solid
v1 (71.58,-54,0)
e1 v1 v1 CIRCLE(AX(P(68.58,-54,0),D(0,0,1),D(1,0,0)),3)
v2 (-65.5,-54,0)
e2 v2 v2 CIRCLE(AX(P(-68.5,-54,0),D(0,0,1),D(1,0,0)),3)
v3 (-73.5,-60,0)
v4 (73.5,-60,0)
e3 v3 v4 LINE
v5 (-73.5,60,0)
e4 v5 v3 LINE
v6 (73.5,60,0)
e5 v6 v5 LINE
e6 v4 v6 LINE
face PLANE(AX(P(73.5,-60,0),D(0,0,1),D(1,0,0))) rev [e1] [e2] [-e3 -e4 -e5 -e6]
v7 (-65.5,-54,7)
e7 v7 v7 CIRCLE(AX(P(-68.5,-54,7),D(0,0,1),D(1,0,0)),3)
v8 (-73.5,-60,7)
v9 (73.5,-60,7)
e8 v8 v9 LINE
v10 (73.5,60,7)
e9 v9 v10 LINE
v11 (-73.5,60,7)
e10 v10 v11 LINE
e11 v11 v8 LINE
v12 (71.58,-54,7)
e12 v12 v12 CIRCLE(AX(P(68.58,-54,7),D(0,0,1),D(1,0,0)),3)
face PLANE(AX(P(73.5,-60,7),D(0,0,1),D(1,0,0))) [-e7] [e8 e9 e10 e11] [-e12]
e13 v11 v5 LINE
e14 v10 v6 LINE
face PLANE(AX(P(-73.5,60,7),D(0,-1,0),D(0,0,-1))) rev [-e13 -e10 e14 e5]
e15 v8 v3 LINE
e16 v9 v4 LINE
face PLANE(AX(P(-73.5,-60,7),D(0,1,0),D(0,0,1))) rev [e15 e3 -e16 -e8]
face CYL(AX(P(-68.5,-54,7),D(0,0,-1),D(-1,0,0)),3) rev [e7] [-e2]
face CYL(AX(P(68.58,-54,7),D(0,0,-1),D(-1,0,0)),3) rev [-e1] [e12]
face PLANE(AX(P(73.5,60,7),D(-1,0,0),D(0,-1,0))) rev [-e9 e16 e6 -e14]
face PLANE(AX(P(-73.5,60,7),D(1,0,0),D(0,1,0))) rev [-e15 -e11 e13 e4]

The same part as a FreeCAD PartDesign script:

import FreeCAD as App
import Part
import Sketcher

V = App.Vector
Q = App.Units.Quantity


def add_polygon(sketch, points):
    """Adds a closed chain of lines whose ends are joined by coincident constraints."""
    first, n = sketch.GeometryCount, len(points)
    for a, b in zip(points, points[1:] + points[:1]):
        sketch.addGeometry(Part.LineSegment(App.Vector(*a, 0), App.Vector(*b, 0)), False)
    for i in range(n):
        sketch.addConstraint(Sketcher.Constraint("Coincident", first + i, 2, first + (i + 1) % n, 1))

doc = App.newDocument("Part")
params = doc.addObject("Spreadsheet::Sheet", "Params")
for row, (alias, value) in enumerate([
    ("sketch1_diameter", "6 mm"),
    ("sketch1_width", "147 mm"),
    ("sketch1_height", "120 mm"),
    ("pad1_length", "7 mm"),
], start=1):
    params.set(f"A{row}", alias)
    params.set(f"B{row}", "=" + value)
    params.setAlias(f"B{row}", alias)

body = doc.addObject("PartDesign::Body", "Body")

# Sketch on XY plane
sketch1 = body.newObject("Sketcher::SketchObject", "Sketch")
sketch1.AttachmentSupport = (doc.getObject("XY_Plane"), [""])
sketch1.MapMode = "FlatFace"
add_polygon(sketch1, [(-73.5, 60), (-73.5, -60), (73.5, -60), (73.5, 60)])  # lines 0-3
sketch1.addGeometry(Part.Circle(V(-68.5, -54, 0), V(0, 0, 1), 3), False)  # 4
sketch1.addGeometry(Part.Circle(V(68.58, -54, 0), V(0, 0, 1), 3), False)  # 5
sketch1.addConstraint(Sketcher.Constraint("Vertical", 0))
sketch1.addConstraint(Sketcher.Constraint("Horizontal", 1))
sketch1.addConstraint(Sketcher.Constraint("Vertical", 2))
sketch1.addConstraint(Sketcher.Constraint("Horizontal", 3))
sketch1.addConstraint(Sketcher.Constraint("Equal", 4, 5))
sketch1.addConstraint(Sketcher.Constraint("Symmetric", 0, 2, 2, 2, -1, 1))
sketch1.addConstraint(Sketcher.Constraint("Horizontal", 4, 3, 5, 3))
sketch1.addConstraint(Sketcher.Constraint("Diameter", 4, Q("6 mm")))
sketch1.addConstraint(Sketcher.Constraint("DistanceX", 1, 1, 1, 2, Q("147 mm")))
sketch1.addConstraint(Sketcher.Constraint("DistanceY", 0, 2, 0, 1, Q("120 mm")))
sketch1.addConstraint(Sketcher.Constraint("DistanceY", 4, 3, -1, 1, Q("54 mm")))
sketch1.addConstraint(Sketcher.Constraint("DistanceX", 0, 2, 4, 3, Q("5 mm")))
sketch1.addConstraint(Sketcher.Constraint("DistanceX", -1, 1, 5, 3, Q("68.58 mm")))
sketch1.setExpression("Constraints[11]", "Params.sketch1_diameter")
sketch1.setExpression("Constraints[12]", "Params.sketch1_width")
sketch1.setExpression("Constraints[13]", "Params.sketch1_height")
pad1 = body.newObject("PartDesign::Pad", "Pad")
pad1.Profile = sketch1
pad1.setExpression("Length", "Params.pad1_length")

doc.recompute()
